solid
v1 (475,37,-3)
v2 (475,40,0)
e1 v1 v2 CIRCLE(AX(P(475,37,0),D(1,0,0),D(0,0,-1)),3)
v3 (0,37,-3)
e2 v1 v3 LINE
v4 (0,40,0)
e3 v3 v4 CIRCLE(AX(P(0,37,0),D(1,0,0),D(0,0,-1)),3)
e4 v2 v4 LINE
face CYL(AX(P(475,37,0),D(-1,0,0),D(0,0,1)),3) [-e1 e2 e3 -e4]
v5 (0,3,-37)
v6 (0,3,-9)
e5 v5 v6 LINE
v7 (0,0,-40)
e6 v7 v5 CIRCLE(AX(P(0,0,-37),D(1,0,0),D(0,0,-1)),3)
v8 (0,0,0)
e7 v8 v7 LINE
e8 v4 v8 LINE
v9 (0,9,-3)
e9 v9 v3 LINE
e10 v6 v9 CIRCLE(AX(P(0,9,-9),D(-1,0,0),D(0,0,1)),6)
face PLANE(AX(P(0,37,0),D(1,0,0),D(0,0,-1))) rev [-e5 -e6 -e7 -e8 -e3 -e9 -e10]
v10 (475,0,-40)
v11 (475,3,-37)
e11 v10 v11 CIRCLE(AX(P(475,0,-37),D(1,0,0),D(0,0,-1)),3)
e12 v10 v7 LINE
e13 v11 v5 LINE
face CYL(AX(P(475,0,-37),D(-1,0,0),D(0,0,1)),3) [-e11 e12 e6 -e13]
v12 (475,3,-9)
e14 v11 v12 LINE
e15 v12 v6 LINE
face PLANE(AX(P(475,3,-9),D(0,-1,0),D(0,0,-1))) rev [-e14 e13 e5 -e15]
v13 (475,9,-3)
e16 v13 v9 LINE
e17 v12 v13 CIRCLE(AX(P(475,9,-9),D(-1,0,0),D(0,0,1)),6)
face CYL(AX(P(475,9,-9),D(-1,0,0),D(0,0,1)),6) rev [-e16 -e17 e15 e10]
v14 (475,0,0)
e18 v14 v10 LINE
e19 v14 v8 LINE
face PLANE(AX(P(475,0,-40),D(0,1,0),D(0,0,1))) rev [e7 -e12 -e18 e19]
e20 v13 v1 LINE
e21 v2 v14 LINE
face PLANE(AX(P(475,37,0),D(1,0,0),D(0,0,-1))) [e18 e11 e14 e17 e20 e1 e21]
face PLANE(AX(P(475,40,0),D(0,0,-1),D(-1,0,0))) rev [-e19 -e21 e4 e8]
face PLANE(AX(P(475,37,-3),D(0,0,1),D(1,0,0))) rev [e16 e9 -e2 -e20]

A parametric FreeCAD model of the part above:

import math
import FreeCAD as App
import Part
import Sketcher

V = App.Vector
Q = App.Units.Quantity

doc = App.newDocument("Part")
body = doc.addObject("PartDesign::Body", "Body")

# Sketch on YZ plane
sketch1 = doc.addObject("Sketcher::SketchObject", "Sketch")
body.addObject(sketch1)
sketch1.AttachmentSupport = (doc.YZ_Plane, [""])
sketch1.MapMode = "FlatFace"
sketch1.addGeometry(Part.LineSegment(V(40, 0, 0), V(0, 0, 0)), False)
sketch1.addGeometry(Part.LineSegment(V(0, 0, 0), V(0, -40, 0)), False)
sketch1.addGeometry(Part.ArcOfCircle(Part.Circle(V(0, -37, 0), V(0, 0, 1), 3), math.radians(-90), math.radians(0)), False)
sketch1.addGeometry(Part.LineSegment(V(3, -37, 0), V(3, -9, 0)), False)
sketch1.addGeometry(Part.ArcOfCircle(Part.Circle(V(9, -9, 0), V(0, 0, 1), 6), math.radians(90), math.radians(180)), False)
sketch1.addGeometry(Part.LineSegment(V(9, -3, 0), V(37, -3, 0)), False)
sketch1.addGeometry(Part.ArcOfCircle(Part.Circle(V(37, 0, 0), V(0, 0, 1), 3), math.radians(-90), math.radians(0)), False)
sketch1.addConstraint(Sketcher.Constraint("Coincident", 0, 2, 1, 1))
sketch1.addConstraint(Sketcher.Constraint("Coincident", 1, 2, 2, 1))
sketch1.addConstraint(Sketcher.Constraint("Tangent", 2, 2, 3, 1))
sketch1.addConstraint(Sketcher.Constraint("Tangent", 3, 2, 4, 2))
sketch1.addConstraint(Sketcher.Constraint("Tangent", 4, 1, 5, 1))
sketch1.addConstraint(Sketcher.Constraint("Tangent", 5, 2, 6, 1))
sketch1.addConstraint(Sketcher.Constraint("Coincident", 6, 2, 0, 1))
sketch1.addConstraint(Sketcher.Constraint("Horizontal", 0))
sketch1.addConstraint(Sketcher.Constraint("Vertical", 1))
sketch1.addConstraint(Sketcher.Constraint("Vertical", 3))
sketch1.addConstraint(Sketcher.Constraint("Horizontal", 5))
sketch1.addConstraint(Sketcher.Constraint("Coincident", 0, 2, -1, 1))
sketch1.addConstraint(Sketcher.Constraint("Equal", 2, 6))
sketch1.addConstraint(Sketcher.Constraint("PointOnObject", 2, 3, -2))
sketch1.addConstraint(Sketcher.Constraint("PointOnObject", 6, 3, -1))
sketch1.addConstraint(Sketcher.Constraint("Equal", 0, 1))
sketch1.addConstraint(Sketcher.Constraint("Radius", 2, Q("3 mm")))
sketch1.addConstraint(Sketcher.Constraint("Radius", 4, Q("6 mm")))
sketch1.addConstraint(Sketcher.Constraint("DistanceX", 0, 2, 0, 1, Q("40 mm")))
pad1 = doc.addObject("PartDesign::Pad", "Pad")
body.addObject(pad1)
pad1.Profile = sketch1
pad1.Length = 475

doc.recompute()
